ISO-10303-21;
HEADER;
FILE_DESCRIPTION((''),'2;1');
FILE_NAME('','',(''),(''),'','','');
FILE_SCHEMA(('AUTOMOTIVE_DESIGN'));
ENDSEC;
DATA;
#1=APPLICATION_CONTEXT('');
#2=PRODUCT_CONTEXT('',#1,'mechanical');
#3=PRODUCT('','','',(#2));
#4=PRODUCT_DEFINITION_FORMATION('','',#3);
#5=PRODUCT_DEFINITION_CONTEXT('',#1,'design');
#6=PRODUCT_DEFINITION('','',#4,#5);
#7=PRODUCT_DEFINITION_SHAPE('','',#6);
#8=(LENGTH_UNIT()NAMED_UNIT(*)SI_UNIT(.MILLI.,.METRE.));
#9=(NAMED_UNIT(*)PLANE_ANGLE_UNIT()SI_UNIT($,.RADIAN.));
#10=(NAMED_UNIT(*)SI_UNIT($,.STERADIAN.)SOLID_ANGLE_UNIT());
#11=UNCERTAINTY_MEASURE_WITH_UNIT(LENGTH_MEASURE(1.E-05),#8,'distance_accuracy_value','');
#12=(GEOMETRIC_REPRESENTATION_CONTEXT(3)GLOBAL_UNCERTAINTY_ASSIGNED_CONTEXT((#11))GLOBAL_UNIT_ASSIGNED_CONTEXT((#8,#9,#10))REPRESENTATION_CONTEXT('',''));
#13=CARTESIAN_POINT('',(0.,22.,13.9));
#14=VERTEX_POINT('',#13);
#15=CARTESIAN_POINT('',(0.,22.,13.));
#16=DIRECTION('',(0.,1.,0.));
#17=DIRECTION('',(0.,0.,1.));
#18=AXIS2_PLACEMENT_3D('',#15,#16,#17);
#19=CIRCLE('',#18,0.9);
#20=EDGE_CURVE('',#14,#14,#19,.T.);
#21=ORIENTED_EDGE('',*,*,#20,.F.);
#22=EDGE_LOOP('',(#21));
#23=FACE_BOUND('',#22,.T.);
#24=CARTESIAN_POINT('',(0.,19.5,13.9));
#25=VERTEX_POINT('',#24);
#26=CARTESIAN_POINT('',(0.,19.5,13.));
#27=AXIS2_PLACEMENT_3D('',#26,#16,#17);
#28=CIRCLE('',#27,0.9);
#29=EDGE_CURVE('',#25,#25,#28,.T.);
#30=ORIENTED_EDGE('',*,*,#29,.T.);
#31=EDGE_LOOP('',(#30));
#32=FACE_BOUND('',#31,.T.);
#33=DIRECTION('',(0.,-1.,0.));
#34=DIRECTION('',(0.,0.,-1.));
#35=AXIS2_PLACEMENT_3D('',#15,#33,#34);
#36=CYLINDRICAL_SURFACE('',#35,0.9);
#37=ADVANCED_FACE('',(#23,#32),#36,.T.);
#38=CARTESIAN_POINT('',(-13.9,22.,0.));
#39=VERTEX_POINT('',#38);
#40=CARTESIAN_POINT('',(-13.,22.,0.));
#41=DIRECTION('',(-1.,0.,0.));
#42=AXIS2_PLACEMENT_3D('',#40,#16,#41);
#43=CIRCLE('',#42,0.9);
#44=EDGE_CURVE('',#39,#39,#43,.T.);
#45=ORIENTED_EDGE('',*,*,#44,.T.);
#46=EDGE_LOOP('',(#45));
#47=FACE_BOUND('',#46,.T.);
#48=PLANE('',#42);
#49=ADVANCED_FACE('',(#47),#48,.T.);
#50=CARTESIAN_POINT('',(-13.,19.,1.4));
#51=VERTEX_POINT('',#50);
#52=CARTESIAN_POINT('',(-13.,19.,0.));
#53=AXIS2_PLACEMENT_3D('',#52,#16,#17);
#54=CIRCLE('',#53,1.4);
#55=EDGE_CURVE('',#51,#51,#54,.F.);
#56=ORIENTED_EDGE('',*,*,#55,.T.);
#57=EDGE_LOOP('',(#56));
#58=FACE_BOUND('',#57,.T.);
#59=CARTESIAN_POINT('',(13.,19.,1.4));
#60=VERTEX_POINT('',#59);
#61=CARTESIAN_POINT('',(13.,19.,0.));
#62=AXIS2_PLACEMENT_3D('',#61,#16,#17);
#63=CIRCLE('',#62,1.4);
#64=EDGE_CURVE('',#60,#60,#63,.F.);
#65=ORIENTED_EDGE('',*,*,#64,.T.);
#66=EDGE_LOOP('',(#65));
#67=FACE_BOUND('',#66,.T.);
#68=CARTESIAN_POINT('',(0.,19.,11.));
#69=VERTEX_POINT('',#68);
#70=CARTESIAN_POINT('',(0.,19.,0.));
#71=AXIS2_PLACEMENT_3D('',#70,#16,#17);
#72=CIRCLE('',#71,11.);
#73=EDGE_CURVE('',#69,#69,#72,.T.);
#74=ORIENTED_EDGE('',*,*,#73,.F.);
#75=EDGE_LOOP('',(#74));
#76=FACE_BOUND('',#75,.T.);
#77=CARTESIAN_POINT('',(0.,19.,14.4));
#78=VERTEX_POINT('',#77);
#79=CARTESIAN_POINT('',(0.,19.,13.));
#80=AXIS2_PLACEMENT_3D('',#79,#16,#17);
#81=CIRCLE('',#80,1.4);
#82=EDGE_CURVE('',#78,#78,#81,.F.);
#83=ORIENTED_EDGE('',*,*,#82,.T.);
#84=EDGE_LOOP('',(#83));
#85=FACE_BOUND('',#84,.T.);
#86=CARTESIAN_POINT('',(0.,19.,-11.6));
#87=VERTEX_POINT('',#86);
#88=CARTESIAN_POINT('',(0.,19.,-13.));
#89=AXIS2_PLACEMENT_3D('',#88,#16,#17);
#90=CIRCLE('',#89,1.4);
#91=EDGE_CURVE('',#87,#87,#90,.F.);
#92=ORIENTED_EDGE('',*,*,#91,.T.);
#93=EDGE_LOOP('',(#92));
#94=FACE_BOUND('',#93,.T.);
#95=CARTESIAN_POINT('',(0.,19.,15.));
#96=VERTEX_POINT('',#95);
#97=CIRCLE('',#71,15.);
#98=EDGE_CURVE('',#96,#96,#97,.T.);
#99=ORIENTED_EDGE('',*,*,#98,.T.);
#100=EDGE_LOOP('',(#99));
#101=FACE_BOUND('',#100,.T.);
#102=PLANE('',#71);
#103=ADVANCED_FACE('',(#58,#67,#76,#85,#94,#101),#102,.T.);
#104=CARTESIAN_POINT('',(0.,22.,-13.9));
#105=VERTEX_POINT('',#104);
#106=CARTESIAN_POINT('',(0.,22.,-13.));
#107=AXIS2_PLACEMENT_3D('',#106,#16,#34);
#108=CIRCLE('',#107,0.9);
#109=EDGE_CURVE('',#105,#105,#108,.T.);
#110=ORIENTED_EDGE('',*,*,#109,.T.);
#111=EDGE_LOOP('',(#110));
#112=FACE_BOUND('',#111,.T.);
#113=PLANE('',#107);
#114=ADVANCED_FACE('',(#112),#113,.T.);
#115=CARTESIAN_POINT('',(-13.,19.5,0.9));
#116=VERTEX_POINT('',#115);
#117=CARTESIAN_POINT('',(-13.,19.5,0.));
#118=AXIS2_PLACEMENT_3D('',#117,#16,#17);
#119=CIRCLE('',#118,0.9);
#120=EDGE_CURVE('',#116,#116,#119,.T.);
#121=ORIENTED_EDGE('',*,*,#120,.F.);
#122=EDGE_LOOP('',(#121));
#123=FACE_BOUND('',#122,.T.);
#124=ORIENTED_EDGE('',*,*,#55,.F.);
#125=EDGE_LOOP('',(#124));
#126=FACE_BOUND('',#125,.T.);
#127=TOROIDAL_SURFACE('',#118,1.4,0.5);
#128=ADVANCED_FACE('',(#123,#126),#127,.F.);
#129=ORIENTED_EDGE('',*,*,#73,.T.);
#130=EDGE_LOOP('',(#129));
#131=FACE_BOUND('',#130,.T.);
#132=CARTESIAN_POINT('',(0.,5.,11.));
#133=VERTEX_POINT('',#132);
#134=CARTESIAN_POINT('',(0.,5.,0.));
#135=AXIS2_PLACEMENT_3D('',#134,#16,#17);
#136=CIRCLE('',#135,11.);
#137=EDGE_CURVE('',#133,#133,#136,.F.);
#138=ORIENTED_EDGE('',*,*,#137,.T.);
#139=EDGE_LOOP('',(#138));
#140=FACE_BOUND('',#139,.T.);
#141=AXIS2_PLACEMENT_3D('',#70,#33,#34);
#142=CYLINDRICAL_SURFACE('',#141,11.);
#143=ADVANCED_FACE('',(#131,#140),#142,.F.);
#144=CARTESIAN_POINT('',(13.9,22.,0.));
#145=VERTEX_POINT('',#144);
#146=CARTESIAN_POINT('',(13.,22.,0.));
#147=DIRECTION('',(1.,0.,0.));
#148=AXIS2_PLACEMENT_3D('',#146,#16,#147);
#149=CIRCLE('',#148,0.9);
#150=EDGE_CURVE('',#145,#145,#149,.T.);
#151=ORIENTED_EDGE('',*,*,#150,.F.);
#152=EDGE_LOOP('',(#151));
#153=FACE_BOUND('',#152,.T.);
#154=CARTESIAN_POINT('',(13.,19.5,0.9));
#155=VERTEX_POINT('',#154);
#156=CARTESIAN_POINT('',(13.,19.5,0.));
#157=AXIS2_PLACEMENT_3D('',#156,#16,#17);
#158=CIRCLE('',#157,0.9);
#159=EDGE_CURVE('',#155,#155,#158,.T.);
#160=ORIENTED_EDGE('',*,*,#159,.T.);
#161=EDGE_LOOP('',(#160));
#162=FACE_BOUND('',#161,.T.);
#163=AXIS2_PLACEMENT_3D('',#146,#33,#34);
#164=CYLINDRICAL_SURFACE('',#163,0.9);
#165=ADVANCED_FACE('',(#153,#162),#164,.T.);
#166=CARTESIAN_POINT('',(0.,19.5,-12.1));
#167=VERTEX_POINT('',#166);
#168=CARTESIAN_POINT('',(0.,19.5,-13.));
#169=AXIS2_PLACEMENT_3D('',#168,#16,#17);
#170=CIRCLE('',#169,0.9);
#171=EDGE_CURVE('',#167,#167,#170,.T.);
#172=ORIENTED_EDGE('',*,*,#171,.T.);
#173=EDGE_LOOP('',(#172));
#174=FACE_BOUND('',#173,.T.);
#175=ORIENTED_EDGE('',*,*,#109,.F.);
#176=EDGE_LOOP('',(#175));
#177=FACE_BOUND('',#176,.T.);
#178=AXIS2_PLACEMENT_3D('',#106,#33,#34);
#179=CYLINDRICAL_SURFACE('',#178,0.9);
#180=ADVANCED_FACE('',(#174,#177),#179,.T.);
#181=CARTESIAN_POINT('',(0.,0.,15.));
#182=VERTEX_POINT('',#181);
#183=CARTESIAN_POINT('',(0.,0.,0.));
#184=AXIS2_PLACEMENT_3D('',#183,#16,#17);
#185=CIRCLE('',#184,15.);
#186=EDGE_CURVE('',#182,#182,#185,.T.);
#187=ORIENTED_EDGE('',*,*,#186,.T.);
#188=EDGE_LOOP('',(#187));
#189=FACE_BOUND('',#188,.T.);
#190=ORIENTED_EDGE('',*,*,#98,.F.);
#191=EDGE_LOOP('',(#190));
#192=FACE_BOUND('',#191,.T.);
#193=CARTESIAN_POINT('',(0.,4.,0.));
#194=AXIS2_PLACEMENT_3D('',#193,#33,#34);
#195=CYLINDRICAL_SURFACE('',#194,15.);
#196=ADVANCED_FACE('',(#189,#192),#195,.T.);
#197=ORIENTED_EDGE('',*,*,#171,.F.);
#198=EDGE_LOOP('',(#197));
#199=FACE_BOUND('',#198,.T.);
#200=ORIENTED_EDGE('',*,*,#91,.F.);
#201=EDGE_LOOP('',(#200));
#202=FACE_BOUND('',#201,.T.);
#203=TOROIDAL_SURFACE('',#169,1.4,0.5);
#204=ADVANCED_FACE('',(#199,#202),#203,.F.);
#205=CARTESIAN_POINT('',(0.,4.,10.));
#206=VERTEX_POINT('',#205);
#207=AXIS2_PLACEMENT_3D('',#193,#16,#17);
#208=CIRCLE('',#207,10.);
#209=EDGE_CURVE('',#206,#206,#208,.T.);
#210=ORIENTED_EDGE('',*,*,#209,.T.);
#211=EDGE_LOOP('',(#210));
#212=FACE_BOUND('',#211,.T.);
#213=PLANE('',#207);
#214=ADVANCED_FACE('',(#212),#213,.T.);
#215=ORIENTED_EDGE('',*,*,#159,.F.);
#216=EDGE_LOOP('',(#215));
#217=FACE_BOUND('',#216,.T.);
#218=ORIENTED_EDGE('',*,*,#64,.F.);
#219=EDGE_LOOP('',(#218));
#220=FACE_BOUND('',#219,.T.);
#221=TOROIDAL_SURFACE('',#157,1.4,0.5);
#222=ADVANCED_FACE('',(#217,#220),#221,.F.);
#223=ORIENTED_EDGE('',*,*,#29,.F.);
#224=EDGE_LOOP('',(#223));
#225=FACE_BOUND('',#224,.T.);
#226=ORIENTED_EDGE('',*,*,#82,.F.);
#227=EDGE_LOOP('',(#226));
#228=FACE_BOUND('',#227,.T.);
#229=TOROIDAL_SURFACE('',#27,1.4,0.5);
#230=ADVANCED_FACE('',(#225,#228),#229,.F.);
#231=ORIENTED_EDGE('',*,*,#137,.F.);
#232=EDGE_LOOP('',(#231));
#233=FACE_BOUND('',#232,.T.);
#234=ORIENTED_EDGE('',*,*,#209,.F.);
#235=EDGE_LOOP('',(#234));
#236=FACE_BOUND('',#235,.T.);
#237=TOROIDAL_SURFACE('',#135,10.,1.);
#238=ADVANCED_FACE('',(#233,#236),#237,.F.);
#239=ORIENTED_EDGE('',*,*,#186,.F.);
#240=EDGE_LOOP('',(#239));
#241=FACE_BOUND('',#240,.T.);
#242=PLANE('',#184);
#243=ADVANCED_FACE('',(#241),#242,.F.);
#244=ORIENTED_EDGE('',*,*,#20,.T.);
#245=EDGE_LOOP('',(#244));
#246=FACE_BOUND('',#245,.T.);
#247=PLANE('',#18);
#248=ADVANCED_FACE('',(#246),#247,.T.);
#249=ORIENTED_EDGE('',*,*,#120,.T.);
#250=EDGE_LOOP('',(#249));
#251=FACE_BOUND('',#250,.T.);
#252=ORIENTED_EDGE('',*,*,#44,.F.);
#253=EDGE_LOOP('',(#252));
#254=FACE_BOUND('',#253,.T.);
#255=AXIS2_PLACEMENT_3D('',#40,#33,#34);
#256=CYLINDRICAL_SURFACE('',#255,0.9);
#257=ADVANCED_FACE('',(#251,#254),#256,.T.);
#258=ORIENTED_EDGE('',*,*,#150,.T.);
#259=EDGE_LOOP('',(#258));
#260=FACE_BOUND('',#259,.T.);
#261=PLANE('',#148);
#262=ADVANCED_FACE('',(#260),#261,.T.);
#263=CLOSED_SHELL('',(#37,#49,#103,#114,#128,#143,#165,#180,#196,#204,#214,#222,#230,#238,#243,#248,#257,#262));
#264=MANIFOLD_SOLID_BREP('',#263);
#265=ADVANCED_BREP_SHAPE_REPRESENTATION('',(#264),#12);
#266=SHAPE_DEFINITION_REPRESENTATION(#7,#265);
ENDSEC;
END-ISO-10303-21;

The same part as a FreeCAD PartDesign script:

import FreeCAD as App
import Part
import Sketcher
from FreeCAD import Vector


def edges_at(feature, points):
    """Names of the edges that pass closest to the given points."""
    edges = feature.Shape.Edges
    near = lambda p: min(range(len(edges)), key=lambda i: edges[i].distToShape(Part.Vertex(*p))[0])
    return sorted({f"Edge{near(p) + 1}" for p in points})

doc = App.newDocument("Part")
body = doc.addObject("PartDesign::Body", "Body")

sketch1 = body.newObject("Sketcher::SketchObject", "Sketch")
sketch1.AttachmentSupport = (doc.getObject("XZ_Plane"), [""])
sketch1.MapMode = "FlatFace"
sketch1.addGeometry(Part.Circle(Vector(0, 0, 0), Vector(0, 0, 1), 15), False)
sketch1.addConstraint(Sketcher.Constraint("Coincident", 0, 3, -1, 1))
sketch1.addConstraint(Sketcher.Constraint("Diameter", 0, 30.0))
pad1 = body.newObject("PartDesign::Pad", "Pad")
pad1.Profile = sketch1
pad1.Length = 4
pad1.Reversed = True

sketch2 = body.newObject("Sketcher::SketchObject", "Sketch001")
sketch2.AttachmentSupport = (doc.getObject("XZ_Plane"), [""])
sketch2.MapMode = "FlatFace"
sketch2.AttachmentOffset = App.Placement(Vector(0, 0, -4), App.Rotation())
sketch2.addGeometry(Part.Circle(Vector(0, 0, 0), Vector(0, 0, 1), 15), False)
sketch2.addGeometry(Part.Circle(Vector(0, 0, 0), Vector(0, 0, 1), 11), False)
sketch2.addConstraint(Sketcher.Constraint("Coincident", 0, 3, -1, 1))
sketch2.addConstraint(Sketcher.Constraint("Coincident", 1, 3, -1, 1))
sketch2.addConstraint(Sketcher.Constraint("Diameter", 0, 30.0))
sketch2.addConstraint(Sketcher.Constraint("Diameter", 1, 22.0))
pad2 = body.newObject("PartDesign::Pad", "Pad001")
pad2.Profile = sketch2
pad2.Length = 15
pad2.Reversed = True

sketch3 = body.newObject("Sketcher::SketchObject", "Sketch002")
sketch3.AttachmentSupport = (doc.getObject("XZ_Plane"), [""])
sketch3.MapMode = "FlatFace"
sketch3.AttachmentOffset = App.Placement(Vector(0, 0, -19), App.Rotation())
sketch3.addGeometry(Part.Circle(Vector(0, 13, 0), Vector(0, 0, 1), 0.9), False)
sketch3.addConstraint(Sketcher.Constraint("PointOnObject", 0, 3, -2))
sketch3.addConstraint(Sketcher.Constraint("Diameter", 0, 1.8))
sketch3.addConstraint(Sketcher.Constraint("DistanceY", -1, 1, 0, 3, 13.0))
pad3 = body.newObject("PartDesign::Pad", "Pad002")
pad3.Profile = sketch3
pad3.Length = 3
pad3.Reversed = True
doc.recompute()

fillet = body.newObject("PartDesign::Fillet", "Fillet")
fillet.Base = (pad3, edges_at(pad3, [(0, 19, 12.1)]))
fillet.Radius = 0.5
doc.recompute()

polarpattern = body.newObject("PartDesign::PolarPattern", "PolarPattern")
polarpattern.Originals = [pad3]
polarpattern.Axis = (doc.getObject("Y_Axis"), [""])
polarpattern.Angle = 360
polarpattern.Occurrences = 4
body.Tip = polarpattern
doc.recompute()

fillet2 = body.newObject("PartDesign::Fillet", "Fillet001")
fillet2.Base = (polarpattern, edges_at(polarpattern, [(12.1, 19, 0), (0, 19, -12.1), (-12.1, 19, 0)]))
fillet2.Radius = 0.5
doc.recompute()

fillet3 = body.newObject("PartDesign::Fillet", "Fillet002")
fillet3.Base = (fillet2, edges_at(fillet2, [(0, 4, -11)]))
fillet3.Radius = 1

doc.recompute()
